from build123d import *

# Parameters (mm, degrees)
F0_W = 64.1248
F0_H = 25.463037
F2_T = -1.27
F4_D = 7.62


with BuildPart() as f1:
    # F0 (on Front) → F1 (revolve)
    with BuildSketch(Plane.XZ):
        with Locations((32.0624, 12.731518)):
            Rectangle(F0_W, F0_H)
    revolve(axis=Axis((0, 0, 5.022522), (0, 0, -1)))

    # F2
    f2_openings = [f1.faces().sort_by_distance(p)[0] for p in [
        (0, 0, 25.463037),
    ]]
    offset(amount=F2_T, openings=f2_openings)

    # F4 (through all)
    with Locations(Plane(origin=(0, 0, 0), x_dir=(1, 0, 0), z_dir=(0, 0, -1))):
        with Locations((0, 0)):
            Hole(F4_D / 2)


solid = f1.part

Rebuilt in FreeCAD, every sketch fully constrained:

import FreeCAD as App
import Part
import Sketcher
Q = App.Units.Quantity


def faces_at(feature, points):
    """Names of the faces that lie closest to the given points."""
    faces = feature.Shape.Faces
    near = lambda p: min(range(len(faces)), key=lambda i: faces[i].distToShape(Part.Vertex(*p))[0])
    return sorted({f"Face{near(p) + 1}" for p in points})

doc = App.newDocument("Part")
body = doc.addObject("PartDesign::Body", "Body")

sketch1 = doc.addObject("Sketcher::SketchObject", "Sketch")
body.addObject(sketch1)
sketch1.AttachmentSupport = (doc.XZ_Plane, [""])
sketch1.MapMode = "FlatFace"
sketch1.addGeometry([
    Part.LineSegment(App.Vector(0, 25, 0), App.Vector(0, 0, 0)),
    Part.LineSegment(App.Vector(0, 0, 0), App.Vector(64, 0, 0)),
    Part.LineSegment(App.Vector(64, 0, 0), App.Vector(64, 25, 0)),
    Part.LineSegment(App.Vector(64, 25, 0), App.Vector(0, 25, 0)),
], False)
sketch1.addConstraint([
    Sketcher.Constraint("Coincident", 0, 2, 1, 1),
    Sketcher.Constraint("Coincident", 1, 2, 2, 1),
    Sketcher.Constraint("Coincident", 2, 2, 3, 1),
    Sketcher.Constraint("Coincident", 3, 2, 0, 1),
    Sketcher.Constraint("Vertical", 0),
    Sketcher.Constraint("Horizontal", 1),
    Sketcher.Constraint("Vertical", 2),
    Sketcher.Constraint("Horizontal", 3),
    Sketcher.Constraint("Coincident", 0, 2, -1, 1),
    Sketcher.Constraint("DistanceX", 1, 1, 1, 2, 64.1248),
    Sketcher.Constraint("DistanceY", 0, 2, 0, 1, 25.463037),
])
revolution = doc.addObject("PartDesign::Revolution", "Revolution")
body.addObject(revolution)
revolution.Profile = sketch1
revolution.ReferenceAxis = (sketch1, ["V_Axis"])
revolution.Angle = 360
doc.recompute()

thickness = doc.addObject("PartDesign::Thickness", "Thickness")
body.addObject(thickness)
thickness.Base = (revolution, faces_at(revolution, [(0, 0, 25.463)]))
thickness.Value = Q("0.05 in")
thickness.Reversed = True
thickness.Join = "Arc"

sketch2 = doc.addObject("Sketcher::SketchObject", "Sketch001")
body.addObject(sketch2)
sketch2.AttachmentSupport = (doc.XY_Plane, [""])
sketch2.MapMode = "FlatFace"
sketch2.addGeometry(Part.Circle(App.Vector(0, 0, 0), App.Vector(0, 0, 1), 3.8), False)
sketch2.addConstraint([
    Sketcher.Constraint("Coincident", 0, 3, -1, 1),
    Sketcher.Constraint("Diameter", 0, Q("0.3 in")),
])
doc.recompute()
hole = doc.addObject("PartDesign::Hole", "Hole")
body.addObject(hole)
hole.Profile = sketch2
hole.ThreadType = "None"
hole.Diameter = Q("0.3 in")
hole.DepthType = "ThroughAll"
hole.Reversed = True

doc.recompute()
